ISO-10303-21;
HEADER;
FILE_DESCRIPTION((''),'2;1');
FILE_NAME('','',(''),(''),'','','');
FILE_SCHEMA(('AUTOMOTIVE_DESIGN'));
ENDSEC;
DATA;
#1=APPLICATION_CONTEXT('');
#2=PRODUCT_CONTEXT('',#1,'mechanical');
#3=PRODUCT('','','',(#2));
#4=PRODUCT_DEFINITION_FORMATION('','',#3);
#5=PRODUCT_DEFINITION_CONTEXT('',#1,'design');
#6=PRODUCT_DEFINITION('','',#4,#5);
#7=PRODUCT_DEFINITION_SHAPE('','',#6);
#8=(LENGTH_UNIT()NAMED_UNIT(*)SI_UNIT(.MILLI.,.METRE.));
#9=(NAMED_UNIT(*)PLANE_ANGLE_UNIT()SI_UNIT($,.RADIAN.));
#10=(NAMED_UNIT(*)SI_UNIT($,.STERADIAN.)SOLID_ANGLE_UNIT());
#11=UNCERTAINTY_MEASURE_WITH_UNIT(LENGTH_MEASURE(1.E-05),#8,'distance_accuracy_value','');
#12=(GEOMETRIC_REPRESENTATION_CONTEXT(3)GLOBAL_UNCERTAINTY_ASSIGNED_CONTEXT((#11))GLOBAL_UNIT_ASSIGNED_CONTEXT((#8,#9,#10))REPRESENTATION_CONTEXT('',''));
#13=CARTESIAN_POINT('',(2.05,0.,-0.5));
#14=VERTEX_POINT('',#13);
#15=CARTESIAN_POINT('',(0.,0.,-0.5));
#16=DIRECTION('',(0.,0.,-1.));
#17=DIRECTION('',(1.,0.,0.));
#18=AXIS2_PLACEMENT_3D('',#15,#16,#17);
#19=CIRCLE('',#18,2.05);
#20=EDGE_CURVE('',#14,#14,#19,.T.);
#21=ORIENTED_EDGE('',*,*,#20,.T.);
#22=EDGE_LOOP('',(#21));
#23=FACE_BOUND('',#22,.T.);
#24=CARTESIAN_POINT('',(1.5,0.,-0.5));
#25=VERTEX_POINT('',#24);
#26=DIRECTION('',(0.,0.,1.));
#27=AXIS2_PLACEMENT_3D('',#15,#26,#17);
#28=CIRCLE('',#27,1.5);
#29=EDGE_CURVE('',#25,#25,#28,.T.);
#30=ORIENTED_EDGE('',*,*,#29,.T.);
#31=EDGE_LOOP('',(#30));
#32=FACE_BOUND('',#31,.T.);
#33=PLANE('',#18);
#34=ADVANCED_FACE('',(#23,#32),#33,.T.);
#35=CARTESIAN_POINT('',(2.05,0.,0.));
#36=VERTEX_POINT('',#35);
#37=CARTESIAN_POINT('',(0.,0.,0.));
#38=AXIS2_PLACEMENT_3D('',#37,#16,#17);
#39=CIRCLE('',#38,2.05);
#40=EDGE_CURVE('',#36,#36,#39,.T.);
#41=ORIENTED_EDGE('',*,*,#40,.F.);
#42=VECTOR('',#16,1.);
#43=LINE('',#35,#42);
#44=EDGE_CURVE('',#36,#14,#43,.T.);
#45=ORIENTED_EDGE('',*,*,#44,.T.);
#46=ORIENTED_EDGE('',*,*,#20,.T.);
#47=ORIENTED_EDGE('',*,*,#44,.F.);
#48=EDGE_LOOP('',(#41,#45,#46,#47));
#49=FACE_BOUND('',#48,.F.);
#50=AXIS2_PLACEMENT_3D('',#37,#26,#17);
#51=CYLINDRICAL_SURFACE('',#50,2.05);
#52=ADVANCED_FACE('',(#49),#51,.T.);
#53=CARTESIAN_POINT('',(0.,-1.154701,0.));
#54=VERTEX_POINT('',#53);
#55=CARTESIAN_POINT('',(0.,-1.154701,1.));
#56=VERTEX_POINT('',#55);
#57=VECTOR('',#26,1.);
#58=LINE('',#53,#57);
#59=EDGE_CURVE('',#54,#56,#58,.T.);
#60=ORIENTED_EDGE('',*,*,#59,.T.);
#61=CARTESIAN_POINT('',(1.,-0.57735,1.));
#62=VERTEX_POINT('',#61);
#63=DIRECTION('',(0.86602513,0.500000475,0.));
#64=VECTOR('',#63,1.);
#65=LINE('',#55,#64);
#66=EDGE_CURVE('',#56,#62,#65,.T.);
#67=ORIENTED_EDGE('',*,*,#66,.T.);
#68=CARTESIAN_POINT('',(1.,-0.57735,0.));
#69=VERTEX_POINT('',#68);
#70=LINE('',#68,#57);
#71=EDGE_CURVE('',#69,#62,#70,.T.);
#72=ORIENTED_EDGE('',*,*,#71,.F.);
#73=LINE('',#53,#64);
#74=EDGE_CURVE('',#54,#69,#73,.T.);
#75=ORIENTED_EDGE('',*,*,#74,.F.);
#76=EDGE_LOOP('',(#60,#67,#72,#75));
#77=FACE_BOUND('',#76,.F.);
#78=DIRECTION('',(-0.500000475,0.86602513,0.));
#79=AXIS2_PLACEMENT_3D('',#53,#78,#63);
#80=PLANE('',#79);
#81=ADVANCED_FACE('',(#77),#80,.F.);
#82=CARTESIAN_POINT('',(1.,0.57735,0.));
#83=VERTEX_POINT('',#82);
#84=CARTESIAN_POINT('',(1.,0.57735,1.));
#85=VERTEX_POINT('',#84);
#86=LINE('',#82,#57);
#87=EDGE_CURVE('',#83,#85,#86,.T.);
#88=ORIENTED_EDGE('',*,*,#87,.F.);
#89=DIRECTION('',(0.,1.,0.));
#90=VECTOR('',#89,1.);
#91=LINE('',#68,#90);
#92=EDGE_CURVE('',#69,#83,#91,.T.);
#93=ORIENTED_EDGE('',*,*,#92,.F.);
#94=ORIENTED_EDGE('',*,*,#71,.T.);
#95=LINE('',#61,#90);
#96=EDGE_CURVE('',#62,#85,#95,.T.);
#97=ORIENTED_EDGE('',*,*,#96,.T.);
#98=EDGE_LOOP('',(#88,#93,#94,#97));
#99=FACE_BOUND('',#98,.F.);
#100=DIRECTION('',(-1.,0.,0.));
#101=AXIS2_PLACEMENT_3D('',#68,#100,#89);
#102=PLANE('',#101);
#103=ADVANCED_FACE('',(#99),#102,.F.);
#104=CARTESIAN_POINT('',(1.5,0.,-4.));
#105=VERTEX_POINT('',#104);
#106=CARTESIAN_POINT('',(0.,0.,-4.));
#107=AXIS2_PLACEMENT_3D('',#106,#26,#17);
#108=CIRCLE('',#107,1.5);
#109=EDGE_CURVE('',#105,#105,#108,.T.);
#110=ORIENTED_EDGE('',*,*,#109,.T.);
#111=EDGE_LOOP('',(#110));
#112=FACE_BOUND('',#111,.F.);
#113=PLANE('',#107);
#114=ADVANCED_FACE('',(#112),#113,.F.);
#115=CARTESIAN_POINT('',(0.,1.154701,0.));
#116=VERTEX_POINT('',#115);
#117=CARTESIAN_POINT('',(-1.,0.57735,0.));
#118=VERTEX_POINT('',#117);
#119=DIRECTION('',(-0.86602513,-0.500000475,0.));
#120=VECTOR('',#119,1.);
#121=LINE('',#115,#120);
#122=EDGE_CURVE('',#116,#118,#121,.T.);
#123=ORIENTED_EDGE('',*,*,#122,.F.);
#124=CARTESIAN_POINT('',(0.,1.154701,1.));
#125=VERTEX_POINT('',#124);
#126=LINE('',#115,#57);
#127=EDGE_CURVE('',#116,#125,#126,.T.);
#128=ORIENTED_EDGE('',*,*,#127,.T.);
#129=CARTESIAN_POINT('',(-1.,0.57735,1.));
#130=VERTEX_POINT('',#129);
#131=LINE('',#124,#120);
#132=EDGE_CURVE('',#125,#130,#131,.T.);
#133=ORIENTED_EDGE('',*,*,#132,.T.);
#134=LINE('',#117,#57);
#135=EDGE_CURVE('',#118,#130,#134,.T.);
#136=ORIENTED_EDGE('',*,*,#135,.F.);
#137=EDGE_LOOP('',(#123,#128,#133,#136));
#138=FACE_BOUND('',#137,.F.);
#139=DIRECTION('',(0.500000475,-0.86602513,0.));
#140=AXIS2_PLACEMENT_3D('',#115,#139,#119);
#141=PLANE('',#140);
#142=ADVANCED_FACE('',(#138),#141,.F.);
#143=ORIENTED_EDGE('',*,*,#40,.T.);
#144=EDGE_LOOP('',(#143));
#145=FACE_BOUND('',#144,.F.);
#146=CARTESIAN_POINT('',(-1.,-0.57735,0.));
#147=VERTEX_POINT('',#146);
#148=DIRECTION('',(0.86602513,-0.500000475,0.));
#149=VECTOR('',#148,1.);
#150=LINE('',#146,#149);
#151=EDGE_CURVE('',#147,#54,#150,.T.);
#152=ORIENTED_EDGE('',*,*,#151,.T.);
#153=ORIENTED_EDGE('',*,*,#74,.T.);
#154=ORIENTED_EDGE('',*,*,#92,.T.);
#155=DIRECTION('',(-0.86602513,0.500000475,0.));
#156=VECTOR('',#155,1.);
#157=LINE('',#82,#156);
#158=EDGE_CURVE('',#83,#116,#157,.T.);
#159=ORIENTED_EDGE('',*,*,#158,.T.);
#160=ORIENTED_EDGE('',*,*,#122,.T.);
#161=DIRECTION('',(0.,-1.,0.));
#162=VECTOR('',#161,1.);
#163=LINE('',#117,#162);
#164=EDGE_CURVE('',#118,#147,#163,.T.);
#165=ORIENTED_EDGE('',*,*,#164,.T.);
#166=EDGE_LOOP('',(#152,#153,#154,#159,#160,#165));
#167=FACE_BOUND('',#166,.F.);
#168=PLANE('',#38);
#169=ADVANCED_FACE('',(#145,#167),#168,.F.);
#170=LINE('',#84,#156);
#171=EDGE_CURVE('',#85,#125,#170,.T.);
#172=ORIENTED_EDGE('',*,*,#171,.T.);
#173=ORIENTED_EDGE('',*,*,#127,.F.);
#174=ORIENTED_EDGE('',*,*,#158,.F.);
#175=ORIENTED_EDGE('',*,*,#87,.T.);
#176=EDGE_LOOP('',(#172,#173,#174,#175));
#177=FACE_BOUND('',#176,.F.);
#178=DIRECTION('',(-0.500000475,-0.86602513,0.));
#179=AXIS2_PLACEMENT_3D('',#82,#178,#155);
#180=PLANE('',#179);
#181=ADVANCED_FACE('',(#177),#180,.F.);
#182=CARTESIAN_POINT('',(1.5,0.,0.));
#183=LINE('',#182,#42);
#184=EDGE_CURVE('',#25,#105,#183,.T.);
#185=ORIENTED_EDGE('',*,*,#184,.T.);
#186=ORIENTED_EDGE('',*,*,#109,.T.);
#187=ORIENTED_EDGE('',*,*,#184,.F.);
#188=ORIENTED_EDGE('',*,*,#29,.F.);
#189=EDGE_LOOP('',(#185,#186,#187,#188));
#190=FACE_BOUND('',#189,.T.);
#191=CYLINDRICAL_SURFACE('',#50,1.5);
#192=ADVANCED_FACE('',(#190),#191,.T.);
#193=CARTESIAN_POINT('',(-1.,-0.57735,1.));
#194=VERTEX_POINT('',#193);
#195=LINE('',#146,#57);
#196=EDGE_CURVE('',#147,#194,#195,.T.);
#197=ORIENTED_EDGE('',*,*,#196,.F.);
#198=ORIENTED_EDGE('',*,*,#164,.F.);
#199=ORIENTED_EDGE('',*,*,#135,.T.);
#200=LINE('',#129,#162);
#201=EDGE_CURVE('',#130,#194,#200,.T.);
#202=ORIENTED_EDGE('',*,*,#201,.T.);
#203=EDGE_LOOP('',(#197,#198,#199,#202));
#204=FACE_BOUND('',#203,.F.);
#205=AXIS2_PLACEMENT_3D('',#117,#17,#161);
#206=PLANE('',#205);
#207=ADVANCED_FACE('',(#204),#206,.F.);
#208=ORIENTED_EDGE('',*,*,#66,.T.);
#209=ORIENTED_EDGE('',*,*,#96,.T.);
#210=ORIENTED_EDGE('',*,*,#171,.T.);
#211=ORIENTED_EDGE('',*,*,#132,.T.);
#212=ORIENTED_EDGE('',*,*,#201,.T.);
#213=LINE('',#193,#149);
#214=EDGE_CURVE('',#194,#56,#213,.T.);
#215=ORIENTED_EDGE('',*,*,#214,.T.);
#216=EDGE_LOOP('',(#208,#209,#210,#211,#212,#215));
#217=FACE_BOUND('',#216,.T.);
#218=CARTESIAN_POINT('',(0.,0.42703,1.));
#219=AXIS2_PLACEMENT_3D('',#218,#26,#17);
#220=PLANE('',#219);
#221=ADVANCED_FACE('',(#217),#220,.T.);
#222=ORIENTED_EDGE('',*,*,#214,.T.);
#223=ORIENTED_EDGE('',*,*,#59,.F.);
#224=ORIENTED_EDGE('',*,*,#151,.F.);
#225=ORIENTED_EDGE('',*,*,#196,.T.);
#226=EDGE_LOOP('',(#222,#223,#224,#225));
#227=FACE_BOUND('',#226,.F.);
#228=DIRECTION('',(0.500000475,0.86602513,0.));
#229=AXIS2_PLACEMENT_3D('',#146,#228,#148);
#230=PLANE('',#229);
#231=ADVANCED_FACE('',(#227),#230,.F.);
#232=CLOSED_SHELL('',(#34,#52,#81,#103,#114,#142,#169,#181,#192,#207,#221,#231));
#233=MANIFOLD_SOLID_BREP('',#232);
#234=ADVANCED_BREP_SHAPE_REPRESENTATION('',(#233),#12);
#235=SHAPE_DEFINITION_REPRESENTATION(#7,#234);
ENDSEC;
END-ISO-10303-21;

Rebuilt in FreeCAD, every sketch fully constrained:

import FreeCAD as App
import Part
import Sketcher
from FreeCAD import Vector
Q = App.Units.Quantity

doc = App.newDocument("Part")
body = doc.addObject("PartDesign::Body", "Body")

sketch1 = body.newObject("Sketcher::SketchObject", "Sketch")
sketch1.AttachmentSupport = (doc.getObject("XY_Plane"), [""])
sketch1.MapMode = "FlatFace"
sketch1.addGeometry([
    Part.LineSegment(Vector(-1, 0.57735, 0), Vector(-1, -0.57735, 0)),
    Part.LineSegment(Vector(-1, -0.57735, 0), Vector(0, -1.154701, 0)),
    Part.LineSegment(Vector(0, -1.154701, 0), Vector(1, -0.57735, 0)),
    Part.LineSegment(Vector(1, -0.57735, 0), Vector(1, 0.57735, 0)),
    Part.LineSegment(Vector(1, 0.57735, 0), Vector(0, 1.154701, 0)),
    Part.LineSegment(Vector(0, 1.154701, 0), Vector(-1, 0.57735, 0)),
], False)
sketch1.addConstraint([
    Sketcher.Constraint("Coincident", 0, 2, 1, 1),
    Sketcher.Constraint("Coincident", 1, 2, 2, 1),
    Sketcher.Constraint("Coincident", 2, 2, 3, 1),
    Sketcher.Constraint("Coincident", 3, 2, 4, 1),
    Sketcher.Constraint("Coincident", 4, 2, 5, 1),
    Sketcher.Constraint("Coincident", 5, 2, 0, 1),
    Sketcher.Constraint("Vertical", 0),
    Sketcher.Constraint("Vertical", 3),
    Sketcher.Constraint("Symmetric", 0, 2, 3, 2, -1, 1),
    Sketcher.Constraint("Symmetric", 1, 2, 4, 2, -1, 1),
    Sketcher.Constraint("PointOnObject", 1, 2, -2),
    Sketcher.Constraint("Parallel", 2, 5),
    Sketcher.Constraint("Horizontal", 0, 2, 2, 2),
    Sketcher.Constraint("DistanceX", 0, 2, -1, 1, Q("1 mm")),
    Sketcher.Constraint("DistanceY", 0, 2, 0, 1, Q("1.1547 mm")),
    Sketcher.Constraint("Distance", 1, Q("1.154701 mm")),
])
pad1 = body.newObject("PartDesign::Pad", "Pad")
pad1.Profile = sketch1
pad1.Length = 1

sketch2 = body.newObject("Sketcher::SketchObject", "Sketch001")
sketch2.AttachmentSupport = (doc.getObject("XY_Plane"), [""])
sketch2.MapMode = "FlatFace"
sketch2.addGeometry(Part.Circle(Vector(0, 0, 0), Vector(0, 0, 1), 2.05), False)
sketch2.addConstraint([
    Sketcher.Constraint("Coincident", 0, 3, -1, 1),
    Sketcher.Constraint("Diameter", 0, Q("4.1 mm")),
])
pad2 = body.newObject("PartDesign::Pad", "Pad001")
pad2.Profile = sketch2
pad2.Length = 0.5
pad2.Reversed = True

sketch3 = body.newObject("Sketcher::SketchObject", "Sketch002")
sketch3.AttachmentSupport = (doc.getObject("XY_Plane"), [""])
sketch3.MapMode = "FlatFace"
sketch3.addGeometry(Part.Circle(Vector(0, 0, 0), Vector(0, 0, 1), 1.5), False)
sketch3.addConstraint([
    Sketcher.Constraint("Coincident", 0, 3, -1, 1),
    Sketcher.Constraint("Diameter", 0, Q("3 mm")),
])
pad3 = body.newObject("PartDesign::Pad", "Pad002")
pad3.Profile = sketch3
pad3.Length = 4
pad3.Reversed = True

doc.recompute()
